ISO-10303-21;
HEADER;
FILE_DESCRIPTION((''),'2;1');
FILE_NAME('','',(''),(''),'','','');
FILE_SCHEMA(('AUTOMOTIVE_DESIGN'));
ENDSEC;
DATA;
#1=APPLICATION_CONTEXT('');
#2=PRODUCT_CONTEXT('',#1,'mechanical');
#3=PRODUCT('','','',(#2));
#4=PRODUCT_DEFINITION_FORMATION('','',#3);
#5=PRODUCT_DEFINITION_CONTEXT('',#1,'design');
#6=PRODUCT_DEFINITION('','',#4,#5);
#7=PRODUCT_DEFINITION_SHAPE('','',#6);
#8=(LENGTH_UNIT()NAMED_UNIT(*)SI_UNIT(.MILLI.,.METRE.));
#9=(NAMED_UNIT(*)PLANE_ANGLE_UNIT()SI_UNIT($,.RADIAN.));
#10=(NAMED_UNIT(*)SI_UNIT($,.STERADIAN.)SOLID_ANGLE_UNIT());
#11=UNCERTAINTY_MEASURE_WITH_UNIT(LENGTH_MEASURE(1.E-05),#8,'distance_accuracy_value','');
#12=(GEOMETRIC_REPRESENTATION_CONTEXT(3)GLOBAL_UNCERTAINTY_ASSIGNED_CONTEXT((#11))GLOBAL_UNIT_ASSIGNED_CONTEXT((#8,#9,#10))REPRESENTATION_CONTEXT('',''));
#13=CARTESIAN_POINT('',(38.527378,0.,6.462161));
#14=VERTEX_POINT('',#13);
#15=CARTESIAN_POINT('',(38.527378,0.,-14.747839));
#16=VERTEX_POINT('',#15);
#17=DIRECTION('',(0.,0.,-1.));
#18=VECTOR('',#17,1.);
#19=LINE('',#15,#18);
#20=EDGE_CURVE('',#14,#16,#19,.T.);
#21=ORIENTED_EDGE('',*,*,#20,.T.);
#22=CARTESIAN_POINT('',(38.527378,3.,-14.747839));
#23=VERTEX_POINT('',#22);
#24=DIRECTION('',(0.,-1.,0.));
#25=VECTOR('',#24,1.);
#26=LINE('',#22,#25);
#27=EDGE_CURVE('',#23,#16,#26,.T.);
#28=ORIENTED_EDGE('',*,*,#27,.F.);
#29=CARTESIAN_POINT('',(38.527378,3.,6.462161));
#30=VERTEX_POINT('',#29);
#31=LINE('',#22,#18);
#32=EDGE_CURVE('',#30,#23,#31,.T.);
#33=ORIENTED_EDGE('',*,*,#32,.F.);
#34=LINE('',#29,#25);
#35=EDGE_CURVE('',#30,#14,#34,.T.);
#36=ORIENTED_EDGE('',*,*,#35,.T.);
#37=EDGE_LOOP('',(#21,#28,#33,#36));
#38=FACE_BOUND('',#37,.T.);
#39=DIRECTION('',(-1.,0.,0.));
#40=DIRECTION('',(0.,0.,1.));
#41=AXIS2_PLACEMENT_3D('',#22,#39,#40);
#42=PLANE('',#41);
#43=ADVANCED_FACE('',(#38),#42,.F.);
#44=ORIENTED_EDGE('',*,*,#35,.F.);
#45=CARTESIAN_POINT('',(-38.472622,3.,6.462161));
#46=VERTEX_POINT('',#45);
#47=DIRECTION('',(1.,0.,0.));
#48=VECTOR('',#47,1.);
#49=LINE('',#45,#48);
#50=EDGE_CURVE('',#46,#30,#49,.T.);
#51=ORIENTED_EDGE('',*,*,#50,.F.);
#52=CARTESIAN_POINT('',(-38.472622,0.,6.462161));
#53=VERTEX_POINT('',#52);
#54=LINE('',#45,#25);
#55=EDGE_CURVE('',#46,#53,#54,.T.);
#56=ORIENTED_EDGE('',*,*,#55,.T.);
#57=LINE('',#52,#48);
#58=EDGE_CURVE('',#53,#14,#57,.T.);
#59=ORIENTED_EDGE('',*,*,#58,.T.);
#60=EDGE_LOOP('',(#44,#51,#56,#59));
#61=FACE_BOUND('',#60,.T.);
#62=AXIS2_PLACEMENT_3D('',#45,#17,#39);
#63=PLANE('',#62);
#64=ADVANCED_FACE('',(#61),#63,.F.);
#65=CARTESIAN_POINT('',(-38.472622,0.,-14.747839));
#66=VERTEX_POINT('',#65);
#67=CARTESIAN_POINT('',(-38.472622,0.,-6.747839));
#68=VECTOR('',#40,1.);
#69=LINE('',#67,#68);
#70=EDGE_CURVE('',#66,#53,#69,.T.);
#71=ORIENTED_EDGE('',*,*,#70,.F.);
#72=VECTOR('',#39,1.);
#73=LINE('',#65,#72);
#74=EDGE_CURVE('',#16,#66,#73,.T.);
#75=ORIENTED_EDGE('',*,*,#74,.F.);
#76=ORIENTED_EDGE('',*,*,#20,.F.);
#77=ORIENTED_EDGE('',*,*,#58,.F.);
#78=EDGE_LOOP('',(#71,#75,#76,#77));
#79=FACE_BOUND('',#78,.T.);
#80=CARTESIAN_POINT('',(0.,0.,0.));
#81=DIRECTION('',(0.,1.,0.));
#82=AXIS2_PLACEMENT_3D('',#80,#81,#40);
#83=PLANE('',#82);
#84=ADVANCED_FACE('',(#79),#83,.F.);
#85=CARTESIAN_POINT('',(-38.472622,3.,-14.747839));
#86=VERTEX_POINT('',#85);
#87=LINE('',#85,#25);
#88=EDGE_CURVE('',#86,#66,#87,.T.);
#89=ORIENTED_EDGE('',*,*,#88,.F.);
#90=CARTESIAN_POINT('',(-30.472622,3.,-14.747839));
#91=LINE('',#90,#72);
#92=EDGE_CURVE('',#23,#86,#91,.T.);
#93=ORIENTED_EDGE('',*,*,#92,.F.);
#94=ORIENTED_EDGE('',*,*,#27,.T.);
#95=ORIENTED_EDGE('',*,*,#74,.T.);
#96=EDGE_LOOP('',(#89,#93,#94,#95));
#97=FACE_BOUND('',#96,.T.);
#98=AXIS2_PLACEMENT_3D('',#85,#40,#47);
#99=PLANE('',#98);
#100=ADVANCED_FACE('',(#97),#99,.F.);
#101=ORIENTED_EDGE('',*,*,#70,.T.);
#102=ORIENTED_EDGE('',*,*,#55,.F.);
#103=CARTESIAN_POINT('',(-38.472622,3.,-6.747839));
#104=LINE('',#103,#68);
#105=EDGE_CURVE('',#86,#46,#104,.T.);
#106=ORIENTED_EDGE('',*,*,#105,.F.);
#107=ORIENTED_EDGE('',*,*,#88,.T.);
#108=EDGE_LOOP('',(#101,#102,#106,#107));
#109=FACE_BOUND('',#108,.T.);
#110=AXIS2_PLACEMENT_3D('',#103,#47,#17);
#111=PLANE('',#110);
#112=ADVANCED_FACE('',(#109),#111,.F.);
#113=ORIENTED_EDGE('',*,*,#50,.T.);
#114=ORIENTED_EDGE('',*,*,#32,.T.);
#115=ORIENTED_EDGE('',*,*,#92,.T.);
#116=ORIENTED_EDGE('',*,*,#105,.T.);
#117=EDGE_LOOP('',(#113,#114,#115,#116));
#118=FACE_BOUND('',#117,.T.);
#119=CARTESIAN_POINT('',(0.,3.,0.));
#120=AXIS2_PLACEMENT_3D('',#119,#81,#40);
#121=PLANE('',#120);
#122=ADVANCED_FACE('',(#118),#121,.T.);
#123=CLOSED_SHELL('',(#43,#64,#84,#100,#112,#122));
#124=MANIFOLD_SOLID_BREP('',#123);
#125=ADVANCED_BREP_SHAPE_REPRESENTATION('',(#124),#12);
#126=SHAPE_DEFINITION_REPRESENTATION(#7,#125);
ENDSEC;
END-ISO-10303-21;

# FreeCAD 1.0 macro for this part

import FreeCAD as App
import Part
import Sketcher
from FreeCAD import Vector
Q = App.Units.Quantity


def add_polygon(sketch, points):
    """Adds a closed chain of lines whose ends are joined by coincident constraints."""
    first, n = sketch.GeometryCount, len(points)
    for a, b in zip(points, points[1:] + points[:1]):
        sketch.addGeometry(Part.LineSegment(App.Vector(*a, 0), App.Vector(*b, 0)), False)
    for i in range(n):
        sketch.addConstraint(Sketcher.Constraint("Coincident", first + i, 2, first + (i + 1) % n, 1))

doc = App.newDocument("Part")
params = doc.addObject("Spreadsheet::Sheet", "Params")
for row, (alias, value) in enumerate([
    ("sketch1_width", "77 mm"),
    ("sketch1_height", "21.21 mm"),
    ("pad1_length", "3 mm"),
], start=1):
    params.set(f"A{row}", alias)
    params.set(f"B{row}", "=" + value)
    params.setAlias(f"B{row}", alias)

body = doc.addObject("PartDesign::Body", "Body")

# Sketch on XZ plane
sketch1 = body.newObject("Sketcher::SketchObject", "Sketch")
sketch1.AttachmentSupport = (doc.getObject("XZ_Plane"), [""])
sketch1.MapMode = "FlatFace"
add_polygon(sketch1, [(-38, -15), (-38, 6), (39, 6), (39, -15)])  # lines 0-3
sketch1.addConstraint(Sketcher.Constraint("Vertical", 0))
sketch1.addConstraint(Sketcher.Constraint("Horizontal", 1))
sketch1.addConstraint(Sketcher.Constraint("Vertical", 2))
sketch1.addConstraint(Sketcher.Constraint("Horizontal", 3))
sketch1.addConstraint(Sketcher.Constraint("DistanceX", 1, 1, 1, 2, Q("77 mm")))
sketch1.addConstraint(Sketcher.Constraint("DistanceY", 0, 1, 0, 2, Q("21.21 mm")))
sketch1.addConstraint(Sketcher.Constraint("DistanceY", -1, 1, 0, 2, Q("6.462161 mm")))
sketch1.addConstraint(Sketcher.Constraint("DistanceX", 0, 2, -1, 1, Q("38.472622 mm")))
sketch1.setExpression("Constraints[8]", "Params.sketch1_width")
sketch1.setExpression("Constraints[9]", "Params.sketch1_height")
pad1 = body.newObject("PartDesign::Pad", "Pad")
pad1.Profile = sketch1
pad1.setExpression("Length", "Params.pad1_length")
pad1.Reversed = True

doc.recompute()
